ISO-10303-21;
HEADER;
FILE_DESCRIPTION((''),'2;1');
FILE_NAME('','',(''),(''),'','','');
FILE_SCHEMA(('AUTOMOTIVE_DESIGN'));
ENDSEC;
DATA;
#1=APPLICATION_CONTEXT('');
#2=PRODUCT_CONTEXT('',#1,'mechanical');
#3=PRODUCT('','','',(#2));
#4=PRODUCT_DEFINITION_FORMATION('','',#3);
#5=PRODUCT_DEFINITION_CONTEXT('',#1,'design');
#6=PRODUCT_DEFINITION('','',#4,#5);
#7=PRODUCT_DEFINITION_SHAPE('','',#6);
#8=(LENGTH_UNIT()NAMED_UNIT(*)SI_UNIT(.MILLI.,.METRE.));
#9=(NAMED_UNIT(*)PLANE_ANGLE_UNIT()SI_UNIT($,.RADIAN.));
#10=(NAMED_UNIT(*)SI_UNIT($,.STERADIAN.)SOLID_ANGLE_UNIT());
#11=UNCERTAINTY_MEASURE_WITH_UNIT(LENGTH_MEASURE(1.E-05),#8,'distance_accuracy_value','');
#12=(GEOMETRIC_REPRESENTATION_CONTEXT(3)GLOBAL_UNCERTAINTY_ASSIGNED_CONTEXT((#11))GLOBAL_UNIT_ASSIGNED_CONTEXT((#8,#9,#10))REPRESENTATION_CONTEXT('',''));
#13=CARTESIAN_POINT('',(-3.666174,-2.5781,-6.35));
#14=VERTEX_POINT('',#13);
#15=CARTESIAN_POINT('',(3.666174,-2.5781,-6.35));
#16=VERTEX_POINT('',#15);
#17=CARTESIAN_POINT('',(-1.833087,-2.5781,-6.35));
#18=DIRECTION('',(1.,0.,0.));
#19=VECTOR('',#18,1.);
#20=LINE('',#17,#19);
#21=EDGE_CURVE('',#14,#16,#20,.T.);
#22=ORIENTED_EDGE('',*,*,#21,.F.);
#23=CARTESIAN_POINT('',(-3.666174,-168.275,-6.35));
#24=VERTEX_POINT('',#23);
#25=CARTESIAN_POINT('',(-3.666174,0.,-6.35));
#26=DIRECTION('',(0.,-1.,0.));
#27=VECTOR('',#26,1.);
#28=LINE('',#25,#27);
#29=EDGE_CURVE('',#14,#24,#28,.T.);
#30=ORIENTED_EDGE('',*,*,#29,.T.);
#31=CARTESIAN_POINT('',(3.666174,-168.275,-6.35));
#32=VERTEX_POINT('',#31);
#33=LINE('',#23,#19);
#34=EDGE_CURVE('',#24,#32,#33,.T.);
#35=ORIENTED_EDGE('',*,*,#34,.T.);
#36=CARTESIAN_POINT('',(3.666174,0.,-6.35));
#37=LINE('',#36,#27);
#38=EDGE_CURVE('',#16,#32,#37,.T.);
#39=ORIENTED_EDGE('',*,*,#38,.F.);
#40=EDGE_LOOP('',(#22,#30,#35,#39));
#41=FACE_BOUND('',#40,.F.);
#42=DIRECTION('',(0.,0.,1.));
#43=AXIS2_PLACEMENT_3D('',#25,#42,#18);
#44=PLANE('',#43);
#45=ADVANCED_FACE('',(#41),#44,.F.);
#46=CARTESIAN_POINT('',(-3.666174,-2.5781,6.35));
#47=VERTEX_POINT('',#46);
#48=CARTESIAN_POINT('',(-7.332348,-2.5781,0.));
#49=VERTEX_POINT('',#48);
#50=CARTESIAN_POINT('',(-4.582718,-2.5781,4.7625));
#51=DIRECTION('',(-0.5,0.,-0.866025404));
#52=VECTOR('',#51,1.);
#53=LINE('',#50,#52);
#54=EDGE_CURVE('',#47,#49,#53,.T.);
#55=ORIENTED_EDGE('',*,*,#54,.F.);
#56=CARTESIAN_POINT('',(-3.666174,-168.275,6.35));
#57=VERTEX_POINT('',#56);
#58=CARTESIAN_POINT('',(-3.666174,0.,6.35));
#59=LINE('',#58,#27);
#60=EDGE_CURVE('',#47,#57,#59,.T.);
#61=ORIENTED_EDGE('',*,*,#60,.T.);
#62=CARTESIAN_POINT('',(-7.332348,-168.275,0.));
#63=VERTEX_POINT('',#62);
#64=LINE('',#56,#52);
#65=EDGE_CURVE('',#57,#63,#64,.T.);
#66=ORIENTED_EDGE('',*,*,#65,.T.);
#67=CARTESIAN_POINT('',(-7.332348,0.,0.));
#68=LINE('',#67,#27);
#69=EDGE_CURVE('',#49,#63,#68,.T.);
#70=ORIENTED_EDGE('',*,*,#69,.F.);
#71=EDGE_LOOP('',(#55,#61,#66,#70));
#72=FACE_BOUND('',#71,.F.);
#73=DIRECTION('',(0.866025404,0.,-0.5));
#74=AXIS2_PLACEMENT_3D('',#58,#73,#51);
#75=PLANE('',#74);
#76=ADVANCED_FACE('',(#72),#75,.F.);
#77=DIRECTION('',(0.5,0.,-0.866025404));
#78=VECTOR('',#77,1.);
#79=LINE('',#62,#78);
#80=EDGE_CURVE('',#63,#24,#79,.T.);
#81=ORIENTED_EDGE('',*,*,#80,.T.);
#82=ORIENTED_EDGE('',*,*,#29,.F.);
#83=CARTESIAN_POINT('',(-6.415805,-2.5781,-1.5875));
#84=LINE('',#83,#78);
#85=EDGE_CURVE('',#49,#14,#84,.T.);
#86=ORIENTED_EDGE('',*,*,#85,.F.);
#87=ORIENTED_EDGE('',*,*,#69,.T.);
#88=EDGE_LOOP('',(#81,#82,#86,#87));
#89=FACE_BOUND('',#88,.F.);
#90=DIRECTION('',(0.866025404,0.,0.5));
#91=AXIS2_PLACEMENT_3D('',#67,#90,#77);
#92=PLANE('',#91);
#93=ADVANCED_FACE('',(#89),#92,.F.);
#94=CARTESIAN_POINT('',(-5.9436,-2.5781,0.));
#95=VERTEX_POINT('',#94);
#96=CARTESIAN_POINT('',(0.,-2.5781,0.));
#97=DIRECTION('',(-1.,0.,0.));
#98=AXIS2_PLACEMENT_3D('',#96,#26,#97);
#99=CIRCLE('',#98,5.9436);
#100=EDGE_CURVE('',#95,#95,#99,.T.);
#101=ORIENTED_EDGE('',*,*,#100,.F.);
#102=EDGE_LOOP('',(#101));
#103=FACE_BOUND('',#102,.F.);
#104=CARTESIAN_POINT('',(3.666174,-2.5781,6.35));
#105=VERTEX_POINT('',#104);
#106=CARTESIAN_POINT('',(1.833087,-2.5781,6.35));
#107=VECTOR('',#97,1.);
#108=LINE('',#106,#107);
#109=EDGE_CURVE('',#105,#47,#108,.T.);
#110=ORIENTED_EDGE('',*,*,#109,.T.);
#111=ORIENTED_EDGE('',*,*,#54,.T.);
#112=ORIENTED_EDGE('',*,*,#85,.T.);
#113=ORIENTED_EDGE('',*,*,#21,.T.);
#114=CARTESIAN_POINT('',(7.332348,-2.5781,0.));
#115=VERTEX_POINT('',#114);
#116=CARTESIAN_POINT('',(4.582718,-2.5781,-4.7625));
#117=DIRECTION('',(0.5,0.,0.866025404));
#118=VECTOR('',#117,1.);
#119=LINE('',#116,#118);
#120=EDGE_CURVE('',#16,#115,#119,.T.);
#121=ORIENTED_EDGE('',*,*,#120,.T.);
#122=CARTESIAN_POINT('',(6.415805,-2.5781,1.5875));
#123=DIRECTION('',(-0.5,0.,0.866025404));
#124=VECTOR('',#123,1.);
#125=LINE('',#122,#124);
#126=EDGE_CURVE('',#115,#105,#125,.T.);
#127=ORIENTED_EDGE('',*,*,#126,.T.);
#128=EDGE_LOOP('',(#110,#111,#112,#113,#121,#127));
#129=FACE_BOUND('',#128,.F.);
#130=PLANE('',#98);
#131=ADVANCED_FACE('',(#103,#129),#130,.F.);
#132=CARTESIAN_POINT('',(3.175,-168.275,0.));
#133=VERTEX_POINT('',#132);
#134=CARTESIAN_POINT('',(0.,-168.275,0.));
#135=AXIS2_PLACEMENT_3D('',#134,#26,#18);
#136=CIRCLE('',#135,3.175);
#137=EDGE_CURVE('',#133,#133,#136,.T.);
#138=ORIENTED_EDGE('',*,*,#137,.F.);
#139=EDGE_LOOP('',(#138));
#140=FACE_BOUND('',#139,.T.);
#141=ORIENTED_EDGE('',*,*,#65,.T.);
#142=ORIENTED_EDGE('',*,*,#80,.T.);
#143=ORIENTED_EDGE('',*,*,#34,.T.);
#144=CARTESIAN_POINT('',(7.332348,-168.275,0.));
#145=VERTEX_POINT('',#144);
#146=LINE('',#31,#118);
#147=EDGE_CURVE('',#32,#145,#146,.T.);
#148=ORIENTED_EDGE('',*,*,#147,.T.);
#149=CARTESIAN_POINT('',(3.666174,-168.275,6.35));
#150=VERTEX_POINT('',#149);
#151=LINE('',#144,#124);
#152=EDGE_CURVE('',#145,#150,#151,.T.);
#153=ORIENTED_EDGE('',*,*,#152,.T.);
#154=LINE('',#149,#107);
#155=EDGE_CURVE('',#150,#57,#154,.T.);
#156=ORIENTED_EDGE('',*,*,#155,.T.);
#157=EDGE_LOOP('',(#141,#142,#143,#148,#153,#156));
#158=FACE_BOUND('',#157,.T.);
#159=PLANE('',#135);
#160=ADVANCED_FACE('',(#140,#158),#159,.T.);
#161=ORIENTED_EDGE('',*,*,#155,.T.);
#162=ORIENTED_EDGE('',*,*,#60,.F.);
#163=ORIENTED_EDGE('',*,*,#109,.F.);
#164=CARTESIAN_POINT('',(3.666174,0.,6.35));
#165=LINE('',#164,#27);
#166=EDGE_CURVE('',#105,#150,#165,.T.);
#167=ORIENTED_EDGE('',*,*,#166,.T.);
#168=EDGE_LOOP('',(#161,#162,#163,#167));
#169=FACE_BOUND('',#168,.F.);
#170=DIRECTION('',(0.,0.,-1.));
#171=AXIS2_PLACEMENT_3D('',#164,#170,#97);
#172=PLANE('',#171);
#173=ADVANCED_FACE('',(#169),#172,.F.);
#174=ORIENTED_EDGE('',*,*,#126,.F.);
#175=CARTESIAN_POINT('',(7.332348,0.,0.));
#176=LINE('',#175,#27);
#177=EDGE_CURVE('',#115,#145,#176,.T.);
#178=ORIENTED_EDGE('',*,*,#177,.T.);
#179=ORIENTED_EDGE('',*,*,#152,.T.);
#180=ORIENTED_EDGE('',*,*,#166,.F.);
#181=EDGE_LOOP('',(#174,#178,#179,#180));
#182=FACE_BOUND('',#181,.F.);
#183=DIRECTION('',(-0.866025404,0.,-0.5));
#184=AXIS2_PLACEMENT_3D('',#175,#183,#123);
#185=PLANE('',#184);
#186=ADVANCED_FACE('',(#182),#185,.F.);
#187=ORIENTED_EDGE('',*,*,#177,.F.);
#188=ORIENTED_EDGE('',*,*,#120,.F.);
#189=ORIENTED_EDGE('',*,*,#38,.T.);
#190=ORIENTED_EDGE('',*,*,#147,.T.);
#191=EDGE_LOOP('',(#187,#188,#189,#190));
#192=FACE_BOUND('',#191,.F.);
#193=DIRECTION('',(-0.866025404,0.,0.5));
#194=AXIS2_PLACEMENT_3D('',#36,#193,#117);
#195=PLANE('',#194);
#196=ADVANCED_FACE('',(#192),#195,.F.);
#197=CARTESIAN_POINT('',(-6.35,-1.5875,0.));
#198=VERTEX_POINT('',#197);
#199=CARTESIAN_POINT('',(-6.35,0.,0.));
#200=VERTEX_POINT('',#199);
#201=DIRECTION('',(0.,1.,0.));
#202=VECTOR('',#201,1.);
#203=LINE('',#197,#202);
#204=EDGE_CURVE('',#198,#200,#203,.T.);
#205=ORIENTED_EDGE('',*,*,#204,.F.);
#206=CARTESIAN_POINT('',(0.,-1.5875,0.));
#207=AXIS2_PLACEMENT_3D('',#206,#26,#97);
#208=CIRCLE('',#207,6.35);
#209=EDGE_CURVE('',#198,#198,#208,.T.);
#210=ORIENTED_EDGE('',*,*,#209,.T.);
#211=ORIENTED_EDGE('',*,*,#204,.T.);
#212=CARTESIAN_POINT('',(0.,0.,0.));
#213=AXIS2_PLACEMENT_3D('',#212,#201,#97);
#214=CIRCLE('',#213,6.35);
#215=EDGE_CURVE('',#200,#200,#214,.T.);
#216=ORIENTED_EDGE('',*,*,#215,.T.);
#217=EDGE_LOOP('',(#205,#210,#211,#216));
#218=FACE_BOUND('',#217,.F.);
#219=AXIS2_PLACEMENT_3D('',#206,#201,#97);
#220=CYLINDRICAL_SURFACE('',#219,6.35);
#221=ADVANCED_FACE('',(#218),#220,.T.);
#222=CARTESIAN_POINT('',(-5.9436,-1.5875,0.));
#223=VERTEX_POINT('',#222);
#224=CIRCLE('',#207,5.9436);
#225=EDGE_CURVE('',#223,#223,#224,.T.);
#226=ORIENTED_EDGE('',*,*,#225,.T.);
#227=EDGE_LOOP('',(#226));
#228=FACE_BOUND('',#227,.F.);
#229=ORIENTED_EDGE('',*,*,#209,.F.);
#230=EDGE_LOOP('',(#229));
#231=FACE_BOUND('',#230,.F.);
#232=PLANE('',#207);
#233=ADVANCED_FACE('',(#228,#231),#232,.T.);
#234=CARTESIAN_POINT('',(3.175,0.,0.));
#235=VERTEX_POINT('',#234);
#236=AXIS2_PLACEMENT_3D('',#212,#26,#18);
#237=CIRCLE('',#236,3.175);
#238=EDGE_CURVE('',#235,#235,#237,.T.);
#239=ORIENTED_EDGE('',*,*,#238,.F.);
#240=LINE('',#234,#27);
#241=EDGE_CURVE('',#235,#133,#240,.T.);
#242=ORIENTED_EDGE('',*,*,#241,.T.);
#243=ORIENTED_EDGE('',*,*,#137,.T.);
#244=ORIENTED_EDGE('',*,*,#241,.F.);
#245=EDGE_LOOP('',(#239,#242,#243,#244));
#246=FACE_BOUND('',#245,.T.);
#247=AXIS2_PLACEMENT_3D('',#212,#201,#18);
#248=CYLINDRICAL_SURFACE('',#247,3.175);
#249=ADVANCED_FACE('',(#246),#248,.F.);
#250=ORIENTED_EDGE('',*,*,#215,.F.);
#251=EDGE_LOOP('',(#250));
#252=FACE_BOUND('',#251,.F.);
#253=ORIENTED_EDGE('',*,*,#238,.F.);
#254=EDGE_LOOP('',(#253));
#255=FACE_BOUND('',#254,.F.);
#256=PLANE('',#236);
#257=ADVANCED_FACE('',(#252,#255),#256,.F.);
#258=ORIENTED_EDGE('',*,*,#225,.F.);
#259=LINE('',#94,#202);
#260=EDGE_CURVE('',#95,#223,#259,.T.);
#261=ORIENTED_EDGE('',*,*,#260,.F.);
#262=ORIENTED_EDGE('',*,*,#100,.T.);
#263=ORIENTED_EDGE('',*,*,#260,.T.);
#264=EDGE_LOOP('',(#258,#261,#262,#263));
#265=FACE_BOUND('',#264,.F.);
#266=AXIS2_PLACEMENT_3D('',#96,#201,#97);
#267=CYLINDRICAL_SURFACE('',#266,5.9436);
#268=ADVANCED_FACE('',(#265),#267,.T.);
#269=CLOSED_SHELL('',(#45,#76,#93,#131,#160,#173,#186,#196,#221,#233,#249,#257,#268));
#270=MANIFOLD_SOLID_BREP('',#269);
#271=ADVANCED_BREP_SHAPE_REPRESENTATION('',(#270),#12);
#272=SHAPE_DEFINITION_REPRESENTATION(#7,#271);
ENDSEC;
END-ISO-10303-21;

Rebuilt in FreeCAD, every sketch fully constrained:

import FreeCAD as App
import Part
import Sketcher
Q = App.Units.Quantity

doc = App.newDocument("Part")
body = doc.addObject("PartDesign::Body", "Body")

sketch1 = body.newObject("Sketcher::SketchObject", "Sketch")
sketch1.AttachmentSupport = (doc.getObject("XZ_Plane"), [""])
sketch1.MapMode = "FlatFace"
sketch1.addGeometry([
    Part.LineSegment(App.Vector(3.666174, 6.35, 0), App.Vector(-3.666174, 6.35, 0)),
    Part.LineSegment(App.Vector(-3.666174, 6.35, 0), App.Vector(-7.332348, 0, 0)),
    Part.LineSegment(App.Vector(-7.332348, 0, 0), App.Vector(-3.666174, -6.35, 0)),
    Part.LineSegment(App.Vector(-3.666174, -6.35, 0), App.Vector(3.666174, -6.35, 0)),
    Part.LineSegment(App.Vector(3.666174, -6.35, 0), App.Vector(7.332348, 0, 0)),
    Part.LineSegment(App.Vector(7.332348, 0, 0), App.Vector(3.666174, 6.35, 0)),
    Part.Circle(App.Vector(0, 0, 0), App.Vector(0, 0, 1), 3.175),
], False)
sketch1.addConstraint([
    Sketcher.Constraint("Coincident", 0, 2, 1, 1),
    Sketcher.Constraint("Coincident", 1, 2, 2, 1),
    Sketcher.Constraint("Coincident", 2, 2, 3, 1),
    Sketcher.Constraint("Coincident", 3, 2, 4, 1),
    Sketcher.Constraint("Coincident", 4, 2, 5, 1),
    Sketcher.Constraint("Coincident", 5, 2, 0, 1),
    Sketcher.Constraint("Horizontal", 0),
    Sketcher.Constraint("Horizontal", 3),
    Sketcher.Constraint("Coincident", 6, 3, -1, 1),
    Sketcher.Constraint("Symmetric", 0, 2, 3, 2, -1, 1),
    Sketcher.Constraint("Symmetric", 1, 2, 4, 2, -1, 1),
    Sketcher.Constraint("PointOnObject", 1, 2, -1),
    Sketcher.Constraint("Parallel", 2, 5),
    Sketcher.Constraint("Vertical", 0, 2, 2, 2),
    Sketcher.Constraint("Diameter", 6, Q("0.25 in")),
    Sketcher.Constraint("Angle", 1, Q("-120 deg")),
    Sketcher.Constraint("DistanceY", 2, 2, 0, 2, Q("0.5 in")),
    Sketcher.Constraint("DistanceX", 0, 2, 0, 1, Q("7.332348 mm")),
])
pad1 = body.newObject("PartDesign::Pad", "Pad")
pad1.Profile = sketch1
pad1.Length = Q("6.625 in")

sketch2 = body.newObject("Sketcher::SketchObject", "Sketch001")
sketch2.AttachmentSupport = (doc.getObject("XY_Plane"), [""])
sketch2.MapMode = "FlatFace"
sketch2.addGeometry([
    Part.LineSegment(App.Vector(-6.35, -1.5875, 0), App.Vector(-6.35, 0, 0)),
    Part.LineSegment(App.Vector(-6.35, 0, 0), App.Vector(-7.332348, 0, 0)),
    Part.LineSegment(App.Vector(-7.332348, 0, 0), App.Vector(-7.332348, -2.5781, 0)),
    Part.LineSegment(App.Vector(-7.332348, -2.5781, 0), App.Vector(-5.9436, -2.5781, 0)),
    Part.LineSegment(App.Vector(-5.9436, -2.5781, 0), App.Vector(-5.9436, -1.5875, 0)),
    Part.LineSegment(App.Vector(-5.9436, -1.5875, 0), App.Vector(-6.35, -1.5875, 0)),
], False)
sketch2.addConstraint([
    Sketcher.Constraint("Coincident", 0, 2, 1, 1),
    Sketcher.Constraint("Coincident", 1, 2, 2, 1),
    Sketcher.Constraint("Coincident", 2, 2, 3, 1),
    Sketcher.Constraint("Coincident", 3, 2, 4, 1),
    Sketcher.Constraint("Coincident", 4, 2, 5, 1),
    Sketcher.Constraint("Coincident", 5, 2, 0, 1),
    Sketcher.Constraint("Vertical", 0),
    Sketcher.Constraint("Horizontal", 1),
    Sketcher.Constraint("Vertical", 2),
    Sketcher.Constraint("Horizontal", 3),
    Sketcher.Constraint("Vertical", 4),
    Sketcher.Constraint("Horizontal", 5),
    Sketcher.Constraint("PointOnObject", 0, 2, -1),
    Sketcher.Constraint("DistanceX", 5, 2, 5, 1, Q("0.016 in")),
    Sketcher.Constraint("DistanceY", 0, 1, 0, 2, Q("0.0625 in")),
    Sketcher.Constraint("DistanceY", 4, 1, 4, 2, Q("0.039 in")),
    Sketcher.Constraint("DistanceX", 0, 2, -1, 1, Q("0.25 in")),
    Sketcher.Constraint("DistanceX", 1, 2, 1, 1, Q("0.982348 mm")),
])
groove = body.newObject("PartDesign::Groove", "Groove")
groove.Profile = sketch2
groove.ReferenceAxis = (sketch2, ["V_Axis"])
groove.Angle = 360

doc.recompute()
